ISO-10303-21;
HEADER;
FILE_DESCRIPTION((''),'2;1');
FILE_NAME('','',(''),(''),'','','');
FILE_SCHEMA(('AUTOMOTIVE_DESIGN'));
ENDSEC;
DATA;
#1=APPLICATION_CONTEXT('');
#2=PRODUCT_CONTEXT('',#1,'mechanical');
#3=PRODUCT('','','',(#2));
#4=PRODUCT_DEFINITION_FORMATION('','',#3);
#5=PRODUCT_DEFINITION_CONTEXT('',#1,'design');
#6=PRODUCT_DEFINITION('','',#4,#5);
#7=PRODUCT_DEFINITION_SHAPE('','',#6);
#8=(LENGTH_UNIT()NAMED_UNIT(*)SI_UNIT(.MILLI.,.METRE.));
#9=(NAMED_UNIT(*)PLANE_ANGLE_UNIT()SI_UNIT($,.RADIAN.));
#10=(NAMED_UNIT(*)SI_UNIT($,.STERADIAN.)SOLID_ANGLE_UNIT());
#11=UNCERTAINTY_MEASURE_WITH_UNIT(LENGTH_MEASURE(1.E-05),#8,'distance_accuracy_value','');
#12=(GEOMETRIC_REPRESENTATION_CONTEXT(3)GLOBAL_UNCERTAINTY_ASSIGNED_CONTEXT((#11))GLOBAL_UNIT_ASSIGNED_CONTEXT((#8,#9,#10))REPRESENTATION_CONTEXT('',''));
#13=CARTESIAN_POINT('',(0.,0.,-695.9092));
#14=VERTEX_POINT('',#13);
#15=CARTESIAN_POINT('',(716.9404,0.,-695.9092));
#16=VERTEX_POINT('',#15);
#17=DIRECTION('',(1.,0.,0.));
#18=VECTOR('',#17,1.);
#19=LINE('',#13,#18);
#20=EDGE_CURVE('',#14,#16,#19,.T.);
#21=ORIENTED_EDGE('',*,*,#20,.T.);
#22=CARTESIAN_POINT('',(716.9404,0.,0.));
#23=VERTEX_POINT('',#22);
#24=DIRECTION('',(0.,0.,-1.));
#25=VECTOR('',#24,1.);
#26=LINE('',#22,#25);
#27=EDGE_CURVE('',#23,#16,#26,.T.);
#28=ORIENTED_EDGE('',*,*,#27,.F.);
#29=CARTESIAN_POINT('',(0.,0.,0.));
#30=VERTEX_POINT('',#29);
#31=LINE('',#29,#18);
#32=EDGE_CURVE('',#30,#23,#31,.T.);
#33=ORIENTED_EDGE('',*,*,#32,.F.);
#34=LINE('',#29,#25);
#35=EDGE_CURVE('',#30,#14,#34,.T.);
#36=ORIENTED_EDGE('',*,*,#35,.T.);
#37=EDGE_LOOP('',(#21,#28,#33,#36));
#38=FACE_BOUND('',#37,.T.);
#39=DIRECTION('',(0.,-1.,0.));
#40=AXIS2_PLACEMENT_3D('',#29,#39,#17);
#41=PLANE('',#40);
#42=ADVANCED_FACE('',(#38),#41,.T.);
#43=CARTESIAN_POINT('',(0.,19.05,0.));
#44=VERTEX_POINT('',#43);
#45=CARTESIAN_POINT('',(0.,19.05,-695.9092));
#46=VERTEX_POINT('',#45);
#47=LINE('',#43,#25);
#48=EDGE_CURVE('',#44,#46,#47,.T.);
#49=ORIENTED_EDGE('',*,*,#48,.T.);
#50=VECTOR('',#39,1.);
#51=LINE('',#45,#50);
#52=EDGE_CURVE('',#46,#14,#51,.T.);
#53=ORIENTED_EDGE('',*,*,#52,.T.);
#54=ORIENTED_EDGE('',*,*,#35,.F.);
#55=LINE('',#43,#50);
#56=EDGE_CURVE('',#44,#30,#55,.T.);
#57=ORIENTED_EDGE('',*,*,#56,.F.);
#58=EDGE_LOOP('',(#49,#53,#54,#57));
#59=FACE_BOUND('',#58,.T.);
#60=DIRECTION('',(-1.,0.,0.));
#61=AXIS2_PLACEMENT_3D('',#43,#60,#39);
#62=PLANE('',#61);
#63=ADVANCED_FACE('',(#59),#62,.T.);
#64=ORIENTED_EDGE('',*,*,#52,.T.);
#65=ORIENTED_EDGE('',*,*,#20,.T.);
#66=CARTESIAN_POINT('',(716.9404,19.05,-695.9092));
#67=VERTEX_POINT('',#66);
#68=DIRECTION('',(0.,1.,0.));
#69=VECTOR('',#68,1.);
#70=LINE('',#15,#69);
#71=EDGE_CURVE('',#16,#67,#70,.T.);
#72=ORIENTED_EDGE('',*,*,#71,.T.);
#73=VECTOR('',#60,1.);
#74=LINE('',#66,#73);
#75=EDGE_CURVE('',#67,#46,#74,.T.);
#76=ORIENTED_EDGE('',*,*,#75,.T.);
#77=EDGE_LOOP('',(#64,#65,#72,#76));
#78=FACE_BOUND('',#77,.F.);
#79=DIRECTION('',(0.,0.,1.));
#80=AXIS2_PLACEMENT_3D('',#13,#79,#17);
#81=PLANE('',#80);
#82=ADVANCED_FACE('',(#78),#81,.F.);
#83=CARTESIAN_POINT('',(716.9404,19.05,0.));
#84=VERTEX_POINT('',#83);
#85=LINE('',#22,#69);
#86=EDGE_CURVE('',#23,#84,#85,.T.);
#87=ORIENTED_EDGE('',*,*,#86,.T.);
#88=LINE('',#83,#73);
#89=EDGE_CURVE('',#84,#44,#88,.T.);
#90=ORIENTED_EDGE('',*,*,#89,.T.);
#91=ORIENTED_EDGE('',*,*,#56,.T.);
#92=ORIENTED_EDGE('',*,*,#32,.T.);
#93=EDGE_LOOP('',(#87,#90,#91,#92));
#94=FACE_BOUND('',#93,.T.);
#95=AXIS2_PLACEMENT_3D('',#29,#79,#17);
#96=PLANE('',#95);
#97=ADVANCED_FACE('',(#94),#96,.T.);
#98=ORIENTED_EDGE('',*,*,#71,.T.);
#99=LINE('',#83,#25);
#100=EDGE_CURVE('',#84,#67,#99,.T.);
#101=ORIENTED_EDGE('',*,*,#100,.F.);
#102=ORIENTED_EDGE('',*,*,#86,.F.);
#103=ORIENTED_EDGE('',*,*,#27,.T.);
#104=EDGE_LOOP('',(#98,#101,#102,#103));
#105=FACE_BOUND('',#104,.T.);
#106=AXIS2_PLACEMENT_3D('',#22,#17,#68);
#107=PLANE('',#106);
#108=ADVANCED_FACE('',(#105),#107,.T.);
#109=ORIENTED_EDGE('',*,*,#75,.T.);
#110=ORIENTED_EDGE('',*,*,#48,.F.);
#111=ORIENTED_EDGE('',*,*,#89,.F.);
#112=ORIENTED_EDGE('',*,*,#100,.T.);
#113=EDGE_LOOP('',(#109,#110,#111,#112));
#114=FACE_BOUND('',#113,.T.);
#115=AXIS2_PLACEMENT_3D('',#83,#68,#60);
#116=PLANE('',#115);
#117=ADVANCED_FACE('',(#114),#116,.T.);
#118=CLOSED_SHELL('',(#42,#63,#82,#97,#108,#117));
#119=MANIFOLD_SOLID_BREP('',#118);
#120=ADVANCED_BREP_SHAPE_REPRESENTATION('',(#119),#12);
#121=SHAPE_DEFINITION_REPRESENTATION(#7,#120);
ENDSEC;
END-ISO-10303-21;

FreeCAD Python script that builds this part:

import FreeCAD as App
import Part
import Sketcher

V = App.Vector
Q = App.Units.Quantity

doc = App.newDocument("Part")
body = doc.addObject("PartDesign::Body", "Body")

# Sketch on XY plane
sketch1 = body.newObject("Sketcher::SketchObject", "Sketch")
sketch1.AttachmentSupport = (doc.getObject("XY_Plane"), [""])
sketch1.MapMode = "FlatFace"
sketch1.addGeometry([
    Part.LineSegment(V(0, 19.05, 0), V(0, 0, 0)),
    Part.LineSegment(V(0, 0, 0), V(716.9404, 0, 0)),
    Part.LineSegment(V(716.9404, 0, 0), V(716.9404, 19.05, 0)),
    Part.LineSegment(V(716.9404, 19.05, 0), V(0, 19.05, 0)),
], False)
sketch1.addConstraint([
    Sketcher.Constraint("Coincident", 0, 2, 1, 1),
    Sketcher.Constraint("Coincident", 1, 2, 2, 1),
    Sketcher.Constraint("Coincident", 2, 2, 3, 1),
    Sketcher.Constraint("Coincident", 3, 2, 0, 1),
    Sketcher.Constraint("Vertical", 0),
    Sketcher.Constraint("Horizontal", 1),
    Sketcher.Constraint("Vertical", 2),
    Sketcher.Constraint("Horizontal", 3),
    Sketcher.Constraint("Coincident", 0, 2, -1, 1),
    Sketcher.Constraint("DistanceY", 0, 2, 0, 1, Q("0.75 in")),
    Sketcher.Constraint("DistanceX", 1, 1, 1, 2, Q("28.226 in")),
])
pad1 = body.newObject("PartDesign::Pad", "Pad")
pad1.Profile = sketch1
pad1.Length = Q("27.398 in")
pad1.Reversed = True

doc.recompute()
